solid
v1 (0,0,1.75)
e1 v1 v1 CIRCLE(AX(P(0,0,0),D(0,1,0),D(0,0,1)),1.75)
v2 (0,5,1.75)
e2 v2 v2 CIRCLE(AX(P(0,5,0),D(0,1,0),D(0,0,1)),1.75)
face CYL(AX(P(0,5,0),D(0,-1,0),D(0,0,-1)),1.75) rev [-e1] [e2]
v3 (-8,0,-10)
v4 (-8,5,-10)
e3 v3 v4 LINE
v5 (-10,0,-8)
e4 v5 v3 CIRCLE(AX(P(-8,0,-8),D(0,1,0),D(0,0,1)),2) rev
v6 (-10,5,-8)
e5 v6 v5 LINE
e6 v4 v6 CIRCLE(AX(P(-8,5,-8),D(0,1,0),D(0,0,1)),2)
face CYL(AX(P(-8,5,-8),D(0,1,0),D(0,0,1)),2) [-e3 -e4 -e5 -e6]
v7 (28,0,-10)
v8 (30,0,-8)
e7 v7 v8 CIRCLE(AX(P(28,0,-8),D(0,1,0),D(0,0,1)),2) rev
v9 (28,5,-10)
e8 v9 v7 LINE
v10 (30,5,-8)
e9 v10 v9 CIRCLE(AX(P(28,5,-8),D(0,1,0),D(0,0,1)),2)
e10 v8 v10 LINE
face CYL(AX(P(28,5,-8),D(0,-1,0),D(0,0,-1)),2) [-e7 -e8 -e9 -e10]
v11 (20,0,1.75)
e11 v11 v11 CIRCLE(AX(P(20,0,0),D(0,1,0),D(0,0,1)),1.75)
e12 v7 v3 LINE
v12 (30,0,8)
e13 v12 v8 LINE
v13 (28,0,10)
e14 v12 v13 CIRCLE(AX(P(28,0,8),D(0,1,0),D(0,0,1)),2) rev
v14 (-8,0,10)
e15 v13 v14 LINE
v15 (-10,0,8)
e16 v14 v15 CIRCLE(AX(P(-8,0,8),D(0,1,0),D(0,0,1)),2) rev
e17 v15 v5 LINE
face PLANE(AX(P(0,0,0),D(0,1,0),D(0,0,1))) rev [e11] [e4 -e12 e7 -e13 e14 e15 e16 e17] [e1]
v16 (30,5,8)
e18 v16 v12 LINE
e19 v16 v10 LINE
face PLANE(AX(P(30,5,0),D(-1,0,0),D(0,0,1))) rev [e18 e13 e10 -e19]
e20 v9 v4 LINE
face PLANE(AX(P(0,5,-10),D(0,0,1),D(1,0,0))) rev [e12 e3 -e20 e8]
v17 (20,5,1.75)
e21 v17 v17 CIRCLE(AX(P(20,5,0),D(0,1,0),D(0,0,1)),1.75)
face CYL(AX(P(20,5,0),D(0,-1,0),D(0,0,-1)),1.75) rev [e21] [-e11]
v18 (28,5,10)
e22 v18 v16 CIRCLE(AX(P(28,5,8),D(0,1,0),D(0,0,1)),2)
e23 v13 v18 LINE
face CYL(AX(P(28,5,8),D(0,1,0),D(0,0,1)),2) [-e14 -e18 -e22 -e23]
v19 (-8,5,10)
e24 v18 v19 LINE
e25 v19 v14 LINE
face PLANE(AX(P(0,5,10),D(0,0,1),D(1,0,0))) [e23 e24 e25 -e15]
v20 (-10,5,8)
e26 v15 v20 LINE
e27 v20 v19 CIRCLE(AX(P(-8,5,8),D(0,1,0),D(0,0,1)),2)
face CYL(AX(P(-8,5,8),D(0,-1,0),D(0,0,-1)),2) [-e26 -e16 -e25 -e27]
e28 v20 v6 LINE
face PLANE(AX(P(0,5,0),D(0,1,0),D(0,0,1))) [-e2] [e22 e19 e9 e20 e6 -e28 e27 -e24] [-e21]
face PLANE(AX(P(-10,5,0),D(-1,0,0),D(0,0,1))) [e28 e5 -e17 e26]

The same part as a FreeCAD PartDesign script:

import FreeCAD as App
import Part
import Sketcher

V = App.Vector


def edges_at(feature, points):
    """Names of the edges that pass closest to the given points."""
    edges = feature.Shape.Edges
    near = lambda p: min(range(len(edges)), key=lambda i: edges[i].distToShape(Part.Vertex(*p))[0])
    return sorted({f"Edge{near(p) + 1}" for p in points})

doc = App.newDocument("Part")
body = doc.addObject("PartDesign::Body", "Body")

# Sketch on XZ plane
sketch1 = doc.addObject("Sketcher::SketchObject", "Sketch")
body.addObject(sketch1)
sketch1.AttachmentSupport = (doc.XZ_Plane, [""])
sketch1.MapMode = "FlatFace"
sketch1.addGeometry(Part.LineSegment(V(-10, -10, 0), V(-10, 10, 0)), False)
sketch1.addGeometry(Part.LineSegment(V(-10, 10, 0), V(30, 10, 0)), False)
sketch1.addGeometry(Part.LineSegment(V(30, 10, 0), V(30, -10, 0)), False)
sketch1.addGeometry(Part.LineSegment(V(30, -10, 0), V(-10, -10, 0)), False)
sketch1.addGeometry(Part.Circle(V(0, 0, 0), V(0, 0, 1), 1.75), False)
sketch1.addGeometry(Part.Circle(V(20, 0, 0), V(0, 0, 1), 1.75), False)
sketch1.addConstraint(Sketcher.Constraint("Coincident", 0, 2, 1, 1))
sketch1.addConstraint(Sketcher.Constraint("Coincident", 1, 2, 2, 1))
sketch1.addConstraint(Sketcher.Constraint("Coincident", 2, 2, 3, 1))
sketch1.addConstraint(Sketcher.Constraint("Coincident", 3, 2, 0, 1))
sketch1.addConstraint(Sketcher.Constraint("Vertical", 0))
sketch1.addConstraint(Sketcher.Constraint("Horizontal", 1))
sketch1.addConstraint(Sketcher.Constraint("Vertical", 2))
sketch1.addConstraint(Sketcher.Constraint("Horizontal", 3))
sketch1.addConstraint(Sketcher.Constraint("Coincident", 4, 3, -1, 1))
sketch1.addConstraint(Sketcher.Constraint("Equal", 4, 5))
sketch1.addConstraint(Sketcher.Constraint("PointOnObject", 5, 3, -1))
sketch1.addConstraint(Sketcher.Constraint("Diameter", 4, 3.5))
sketch1.addConstraint(Sketcher.Constraint("DistanceX", 1, 1, 1, 2, 40.0))
sketch1.addConstraint(Sketcher.Constraint("DistanceY", 0, 1, 0, 2, 20.0))
sketch1.addConstraint(Sketcher.Constraint("DistanceX", -1, 1, 5, 3, 20.0))
sketch1.addConstraint(Sketcher.Constraint("DistanceX", 0, 2, -1, 1, 10.0))
sketch1.addConstraint(Sketcher.Constraint("DistanceY", -1, 1, 0, 2, 10.0))
pad1 = doc.addObject("PartDesign::Pad", "Pad")
body.addObject(pad1)
pad1.Profile = sketch1
pad1.Length = 5
pad1.Reversed = True
doc.recompute()

fillet = doc.addObject("PartDesign::Fillet", "Fillet")
body.addObject(fillet)
fillet.Base = (pad1, edges_at(pad1, [(30, 2.5, 10), (30, 2.5, -10)]))
fillet.Radius = 2
doc.recompute()

fillet2 = doc.addObject("PartDesign::Fillet", "Fillet001")
body.addObject(fillet2)
fillet2.Base = (fillet, edges_at(fillet, [(-10, 2.5, 10)]))
fillet2.Radius = 2
doc.recompute()

fillet3 = doc.addObject("PartDesign::Fillet", "Fillet002")
body.addObject(fillet3)
fillet3.Base = (fillet2, edges_at(fillet2, [(-10, 2.5, -10)]))
fillet3.Radius = 2

doc.recompute()
